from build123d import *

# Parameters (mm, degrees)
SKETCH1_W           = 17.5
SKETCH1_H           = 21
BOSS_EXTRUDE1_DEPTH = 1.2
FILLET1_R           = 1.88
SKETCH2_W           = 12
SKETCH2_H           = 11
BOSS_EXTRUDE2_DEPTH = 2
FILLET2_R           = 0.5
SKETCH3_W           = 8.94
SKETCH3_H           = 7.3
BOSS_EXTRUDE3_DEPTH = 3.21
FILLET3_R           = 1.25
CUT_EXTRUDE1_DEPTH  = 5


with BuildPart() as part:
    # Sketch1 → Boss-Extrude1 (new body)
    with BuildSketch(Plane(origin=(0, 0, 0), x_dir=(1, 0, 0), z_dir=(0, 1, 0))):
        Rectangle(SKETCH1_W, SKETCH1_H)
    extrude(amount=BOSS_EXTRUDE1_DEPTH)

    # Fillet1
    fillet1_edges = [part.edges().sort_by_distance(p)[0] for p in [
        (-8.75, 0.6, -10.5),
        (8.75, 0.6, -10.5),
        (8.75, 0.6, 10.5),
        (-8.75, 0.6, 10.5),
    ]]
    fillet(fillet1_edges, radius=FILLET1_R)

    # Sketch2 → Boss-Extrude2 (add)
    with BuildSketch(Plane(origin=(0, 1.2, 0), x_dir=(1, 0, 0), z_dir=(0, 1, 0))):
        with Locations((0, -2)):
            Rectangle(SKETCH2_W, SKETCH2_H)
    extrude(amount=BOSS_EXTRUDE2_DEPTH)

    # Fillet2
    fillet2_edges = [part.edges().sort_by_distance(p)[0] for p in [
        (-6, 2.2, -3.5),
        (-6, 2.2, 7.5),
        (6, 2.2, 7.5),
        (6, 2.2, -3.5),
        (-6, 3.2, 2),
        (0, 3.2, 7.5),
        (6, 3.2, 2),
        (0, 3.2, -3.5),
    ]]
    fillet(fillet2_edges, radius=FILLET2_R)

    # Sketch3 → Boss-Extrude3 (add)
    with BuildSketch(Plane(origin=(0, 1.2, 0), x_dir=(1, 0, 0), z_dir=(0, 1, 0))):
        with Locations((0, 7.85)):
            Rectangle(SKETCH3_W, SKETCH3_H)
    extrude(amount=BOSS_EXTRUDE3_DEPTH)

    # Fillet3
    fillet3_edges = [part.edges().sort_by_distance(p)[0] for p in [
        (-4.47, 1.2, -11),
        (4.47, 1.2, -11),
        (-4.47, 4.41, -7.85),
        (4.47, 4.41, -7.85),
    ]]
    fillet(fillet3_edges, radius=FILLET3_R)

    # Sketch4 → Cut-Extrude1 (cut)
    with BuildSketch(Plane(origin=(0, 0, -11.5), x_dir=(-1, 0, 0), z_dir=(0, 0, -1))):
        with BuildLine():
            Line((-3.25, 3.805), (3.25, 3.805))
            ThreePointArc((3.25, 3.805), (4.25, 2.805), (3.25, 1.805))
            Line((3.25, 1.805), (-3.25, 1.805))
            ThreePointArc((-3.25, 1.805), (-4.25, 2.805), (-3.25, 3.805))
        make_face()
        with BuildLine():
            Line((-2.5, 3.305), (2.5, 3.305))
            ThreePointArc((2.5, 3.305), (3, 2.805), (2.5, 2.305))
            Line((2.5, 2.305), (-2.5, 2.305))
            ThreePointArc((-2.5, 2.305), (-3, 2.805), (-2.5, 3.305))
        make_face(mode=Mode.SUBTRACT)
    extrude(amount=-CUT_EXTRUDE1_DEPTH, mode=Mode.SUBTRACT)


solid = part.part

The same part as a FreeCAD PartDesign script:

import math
import FreeCAD as App
import Part
import Sketcher
from FreeCAD import Vector


def edges_at(feature, points):
    """Names of the edges that pass closest to the given points."""
    edges = feature.Shape.Edges
    near = lambda p: min(range(len(edges)), key=lambda i: edges[i].distToShape(Part.Vertex(*p))[0])
    return sorted({f"Edge{near(p) + 1}" for p in points})

doc = App.newDocument("Part")
body = doc.addObject("PartDesign::Body", "Body")

# Sketch on XZ plane
sketch1 = body.newObject("Sketcher::SketchObject", "Sketch")
sketch1.AttachmentSupport = (doc.getObject("XZ_Plane"), [""])
sketch1.MapMode = "FlatFace"
sketch1.addGeometry(Part.LineSegment(Vector(-8.75, -10.5, 0), Vector(-8.75, 10.5, 0)), False)
sketch1.addGeometry(Part.LineSegment(Vector(-8.75, 10.5, 0), Vector(8.75, 10.5, 0)), False)
sketch1.addGeometry(Part.LineSegment(Vector(8.75, 10.5, 0), Vector(8.75, -10.5, 0)), False)
sketch1.addGeometry(Part.LineSegment(Vector(8.75, -10.5, 0), Vector(-8.75, -10.5, 0)), False)
sketch1.addConstraint(Sketcher.Constraint("Coincident", 0, 2, 1, 1))
sketch1.addConstraint(Sketcher.Constraint("Coincident", 1, 2, 2, 1))
sketch1.addConstraint(Sketcher.Constraint("Coincident", 2, 2, 3, 1))
sketch1.addConstraint(Sketcher.Constraint("Coincident", 3, 2, 0, 1))
sketch1.addConstraint(Sketcher.Constraint("Vertical", 0))
sketch1.addConstraint(Sketcher.Constraint("Horizontal", 1))
sketch1.addConstraint(Sketcher.Constraint("Vertical", 2))
sketch1.addConstraint(Sketcher.Constraint("Horizontal", 3))
sketch1.addConstraint(Sketcher.Constraint("Symmetric", 0, 2, 2, 2, -1, 1))
sketch1.addConstraint(Sketcher.Constraint("DistanceY", 0, 1, 0, 2, 21.0))
sketch1.addConstraint(Sketcher.Constraint("DistanceX", 1, 1, 1, 2, 17.5))
pad1 = body.newObject("PartDesign::Pad", "Pad")
pad1.Profile = sketch1
pad1.Length = 1.2
pad1.Reversed = True
doc.recompute()

fillet = body.newObject("PartDesign::Fillet", "Fillet")
fillet.Base = (pad1, edges_at(pad1, [
    (-8.75, 0.6, -10.5),
    (8.75, 0.6, -10.5),
    (8.75, 0.6, 10.5),
    (-8.75, 0.6, 10.5),
]))
fillet.Radius = 1.88

# Sketch on XZ plane
sketch2 = body.newObject("Sketcher::SketchObject", "Sketch001")
sketch2.AttachmentSupport = (doc.getObject("XZ_Plane"), [""])
sketch2.MapMode = "FlatFace"
sketch2.AttachmentOffset = App.Placement(Vector(0, 0, -1.2), App.Rotation())
sketch2.addGeometry(Part.LineSegment(Vector(-6, -3.5, 0), Vector(-6, 7.5, 0)), False)
sketch2.addGeometry(Part.LineSegment(Vector(-6, 7.5, 0), Vector(6, 7.5, 0)), False)
sketch2.addGeometry(Part.LineSegment(Vector(6, 7.5, 0), Vector(6, -3.5, 0)), False)
sketch2.addGeometry(Part.LineSegment(Vector(6, -3.5, 0), Vector(-6, -3.5, 0)), False)
sketch2.addConstraint(Sketcher.Constraint("Coincident", 0, 2, 1, 1))
sketch2.addConstraint(Sketcher.Constraint("Coincident", 1, 2, 2, 1))
sketch2.addConstraint(Sketcher.Constraint("Coincident", 2, 2, 3, 1))
sketch2.addConstraint(Sketcher.Constraint("Coincident", 3, 2, 0, 1))
sketch2.addConstraint(Sketcher.Constraint("Vertical", 0))
sketch2.addConstraint(Sketcher.Constraint("Horizontal", 1))
sketch2.addConstraint(Sketcher.Constraint("Vertical", 2))
sketch2.addConstraint(Sketcher.Constraint("Horizontal", 3))
sketch2.addConstraint(Sketcher.Constraint("DistanceX", 1, 1, 1, 2, 12.0))
sketch2.addConstraint(Sketcher.Constraint("DistanceY", 0, 1, 0, 2, 11.0))
sketch2.addConstraint(Sketcher.Constraint("DistanceX", 0, 2, -1, 1, 6.0))
sketch2.addConstraint(Sketcher.Constraint("DistanceY", -1, 1, 0, 2, 7.5))
pad2 = body.newObject("PartDesign::Pad", "Pad001")
pad2.Profile = sketch2
pad2.Length = 2
pad2.Reversed = True
doc.recompute()

fillet2 = body.newObject("PartDesign::Fillet", "Fillet001")
fillet2.Base = (pad2, edges_at(pad2, [
    (-6, 2.2, -3.5),
    (-6, 2.2, 7.5),
    (6, 2.2, 7.5),
    (6, 2.2, -3.5),
    (-6, 3.2, 2),
    (0, 3.2, 7.5),
    (6, 3.2, 2),
    (0, 3.2, -3.5),
]))
fillet2.Radius = 0.5

# Sketch on XZ plane
sketch3 = body.newObject("Sketcher::SketchObject", "Sketch002")
sketch3.AttachmentSupport = (doc.getObject("XZ_Plane"), [""])
sketch3.MapMode = "FlatFace"
sketch3.AttachmentOffset = App.Placement(Vector(0, 0, -1.2), App.Rotation())
sketch3.addGeometry(Part.LineSegment(Vector(-4.47, -11.5, 0), Vector(-4.47, -4.2, 0)), False)
sketch3.addGeometry(Part.LineSegment(Vector(-4.47, -4.2, 0), Vector(4.47, -4.2, 0)), False)
sketch3.addGeometry(Part.LineSegment(Vector(4.47, -4.2, 0), Vector(4.47, -11.5, 0)), False)
sketch3.addGeometry(Part.LineSegment(Vector(4.47, -11.5, 0), Vector(-4.47, -11.5, 0)), False)
sketch3.addConstraint(Sketcher.Constraint("Coincident", 0, 2, 1, 1))
sketch3.addConstraint(Sketcher.Constraint("Coincident", 1, 2, 2, 1))
sketch3.addConstraint(Sketcher.Constraint("Coincident", 2, 2, 3, 1))
sketch3.addConstraint(Sketcher.Constraint("Coincident", 3, 2, 0, 1))
sketch3.addConstraint(Sketcher.Constraint("Vertical", 0))
sketch3.addConstraint(Sketcher.Constraint("Horizontal", 1))
sketch3.addConstraint(Sketcher.Constraint("Vertical", 2))
sketch3.addConstraint(Sketcher.Constraint("Horizontal", 3))
sketch3.addConstraint(Sketcher.Constraint("DistanceY", 0, 1, 0, 2, 7.3))
sketch3.addConstraint(Sketcher.Constraint("DistanceX", 1, 1, 1, 2, 8.94))
sketch3.addConstraint(Sketcher.Constraint("DistanceY", 0, 2, -1, 1, 4.2))
sketch3.addConstraint(Sketcher.Constraint("DistanceX", 0, 2, -1, 1, 4.47))
pad3 = body.newObject("PartDesign::Pad", "Pad002")
pad3.Profile = sketch3
pad3.Length = 3.21
pad3.Reversed = True
doc.recompute()

fillet3 = body.newObject("PartDesign::Fillet", "Fillet002")
fillet3.Base = (pad3, edges_at(pad3, [
    (-4.47, 1.2, -11),
    (4.47, 1.2, -11),
    (-4.47, 4.41, -7.85),
    (4.47, 4.41, -7.85),
]))
fillet3.Radius = 1.25

# Sketch on XY plane
sketch4 = body.newObject("Sketcher::SketchObject", "Sketch003")
sketch4.AttachmentSupport = (doc.getObject("XY_Plane"), [""])
sketch4.MapMode = "FlatFace"
sketch4.AttachmentOffset = App.Placement(Vector(0, 0, -11.5), App.Rotation())
sketch4.addGeometry(Part.LineSegment(Vector(-3.25, 3.805, 0), Vector(3.25, 3.805, 0)), False)
sketch4.addGeometry(Part.ArcOfCircle(Part.Circle(Vector(3.25, 2.805, 0), Vector(0, 0, 1), 1), math.radians(-90), math.radians(90)), False)
sketch4.addGeometry(Part.LineSegment(Vector(3.25, 1.805, 0), Vector(-3.25, 1.805, 0)), False)
sketch4.addGeometry(Part.ArcOfCircle(Part.Circle(Vector(-3.25, 2.805, 0), Vector(0, 0, 1), 1), math.radians(90), math.radians(270)), False)
sketch4.addGeometry(Part.LineSegment(Vector(2.5, 3.305, 0), Vector(-2.5, 3.305, 0)), False)
sketch4.addGeometry(Part.ArcOfCircle(Part.Circle(Vector(-2.5, 2.805, 0), Vector(0, 0, 1), 0.5), math.radians(90), math.radians(270)), False)
sketch4.addGeometry(Part.LineSegment(Vector(-2.5, 2.305, 0), Vector(2.5, 2.305, 0)), False)
sketch4.addGeometry(Part.ArcOfCircle(Part.Circle(Vector(2.5, 2.805, 0), Vector(0, 0, 1), 0.5), math.radians(-90), math.radians(90)), False)
sketch4.addConstraint(Sketcher.Constraint("Tangent", 0, 2, 1, 2))
sketch4.addConstraint(Sketcher.Constraint("Tangent", 1, 1, 2, 1))
sketch4.addConstraint(Sketcher.Constraint("Tangent", 2, 2, 3, 2))
sketch4.addConstraint(Sketcher.Constraint("Tangent", 3, 1, 0, 1))
sketch4.addConstraint(Sketcher.Constraint("Tangent", 4, 2, 5, 1))
sketch4.addConstraint(Sketcher.Constraint("Tangent", 5, 2, 6, 1))
sketch4.addConstraint(Sketcher.Constraint("Tangent", 6, 2, 7, 1))
sketch4.addConstraint(Sketcher.Constraint("Tangent", 7, 2, 4, 1))
sketch4.addConstraint(Sketcher.Constraint("Horizontal", 0))
sketch4.addConstraint(Sketcher.Constraint("Horizontal", 2))
sketch4.addConstraint(Sketcher.Constraint("Horizontal", 4))
sketch4.addConstraint(Sketcher.Constraint("Horizontal", 6))
sketch4.addConstraint(Sketcher.Constraint("Horizontal", 3, 3, 5, 3))
sketch4.addConstraint(Sketcher.Constraint("Radius", 1, 1.0))
sketch4.addConstraint(Sketcher.Constraint("Radius", 5, 0.5))
sketch4.addConstraint(Sketcher.Constraint("DistanceX", 4, 2, 4, 1, 5.0))
sketch4.addConstraint(Sketcher.Constraint("DistanceX", 0, 1, 0, 2, 6.5))
sketch4.addConstraint(Sketcher.Constraint("DistanceX", 5, 3, -1, 1, 2.5))
sketch4.addConstraint(Sketcher.Constraint("DistanceX", -1, 1, 1, 3, 3.25))
sketch4.addConstraint(Sketcher.Constraint("DistanceY", -1, 1, 1, 3, 2.805))
pocket1 = body.newObject("PartDesign::Pocket", "Pocket")
pocket1.Profile = sketch4
pocket1.Length = 5
pocket1.Reversed = True

doc.recompute()
